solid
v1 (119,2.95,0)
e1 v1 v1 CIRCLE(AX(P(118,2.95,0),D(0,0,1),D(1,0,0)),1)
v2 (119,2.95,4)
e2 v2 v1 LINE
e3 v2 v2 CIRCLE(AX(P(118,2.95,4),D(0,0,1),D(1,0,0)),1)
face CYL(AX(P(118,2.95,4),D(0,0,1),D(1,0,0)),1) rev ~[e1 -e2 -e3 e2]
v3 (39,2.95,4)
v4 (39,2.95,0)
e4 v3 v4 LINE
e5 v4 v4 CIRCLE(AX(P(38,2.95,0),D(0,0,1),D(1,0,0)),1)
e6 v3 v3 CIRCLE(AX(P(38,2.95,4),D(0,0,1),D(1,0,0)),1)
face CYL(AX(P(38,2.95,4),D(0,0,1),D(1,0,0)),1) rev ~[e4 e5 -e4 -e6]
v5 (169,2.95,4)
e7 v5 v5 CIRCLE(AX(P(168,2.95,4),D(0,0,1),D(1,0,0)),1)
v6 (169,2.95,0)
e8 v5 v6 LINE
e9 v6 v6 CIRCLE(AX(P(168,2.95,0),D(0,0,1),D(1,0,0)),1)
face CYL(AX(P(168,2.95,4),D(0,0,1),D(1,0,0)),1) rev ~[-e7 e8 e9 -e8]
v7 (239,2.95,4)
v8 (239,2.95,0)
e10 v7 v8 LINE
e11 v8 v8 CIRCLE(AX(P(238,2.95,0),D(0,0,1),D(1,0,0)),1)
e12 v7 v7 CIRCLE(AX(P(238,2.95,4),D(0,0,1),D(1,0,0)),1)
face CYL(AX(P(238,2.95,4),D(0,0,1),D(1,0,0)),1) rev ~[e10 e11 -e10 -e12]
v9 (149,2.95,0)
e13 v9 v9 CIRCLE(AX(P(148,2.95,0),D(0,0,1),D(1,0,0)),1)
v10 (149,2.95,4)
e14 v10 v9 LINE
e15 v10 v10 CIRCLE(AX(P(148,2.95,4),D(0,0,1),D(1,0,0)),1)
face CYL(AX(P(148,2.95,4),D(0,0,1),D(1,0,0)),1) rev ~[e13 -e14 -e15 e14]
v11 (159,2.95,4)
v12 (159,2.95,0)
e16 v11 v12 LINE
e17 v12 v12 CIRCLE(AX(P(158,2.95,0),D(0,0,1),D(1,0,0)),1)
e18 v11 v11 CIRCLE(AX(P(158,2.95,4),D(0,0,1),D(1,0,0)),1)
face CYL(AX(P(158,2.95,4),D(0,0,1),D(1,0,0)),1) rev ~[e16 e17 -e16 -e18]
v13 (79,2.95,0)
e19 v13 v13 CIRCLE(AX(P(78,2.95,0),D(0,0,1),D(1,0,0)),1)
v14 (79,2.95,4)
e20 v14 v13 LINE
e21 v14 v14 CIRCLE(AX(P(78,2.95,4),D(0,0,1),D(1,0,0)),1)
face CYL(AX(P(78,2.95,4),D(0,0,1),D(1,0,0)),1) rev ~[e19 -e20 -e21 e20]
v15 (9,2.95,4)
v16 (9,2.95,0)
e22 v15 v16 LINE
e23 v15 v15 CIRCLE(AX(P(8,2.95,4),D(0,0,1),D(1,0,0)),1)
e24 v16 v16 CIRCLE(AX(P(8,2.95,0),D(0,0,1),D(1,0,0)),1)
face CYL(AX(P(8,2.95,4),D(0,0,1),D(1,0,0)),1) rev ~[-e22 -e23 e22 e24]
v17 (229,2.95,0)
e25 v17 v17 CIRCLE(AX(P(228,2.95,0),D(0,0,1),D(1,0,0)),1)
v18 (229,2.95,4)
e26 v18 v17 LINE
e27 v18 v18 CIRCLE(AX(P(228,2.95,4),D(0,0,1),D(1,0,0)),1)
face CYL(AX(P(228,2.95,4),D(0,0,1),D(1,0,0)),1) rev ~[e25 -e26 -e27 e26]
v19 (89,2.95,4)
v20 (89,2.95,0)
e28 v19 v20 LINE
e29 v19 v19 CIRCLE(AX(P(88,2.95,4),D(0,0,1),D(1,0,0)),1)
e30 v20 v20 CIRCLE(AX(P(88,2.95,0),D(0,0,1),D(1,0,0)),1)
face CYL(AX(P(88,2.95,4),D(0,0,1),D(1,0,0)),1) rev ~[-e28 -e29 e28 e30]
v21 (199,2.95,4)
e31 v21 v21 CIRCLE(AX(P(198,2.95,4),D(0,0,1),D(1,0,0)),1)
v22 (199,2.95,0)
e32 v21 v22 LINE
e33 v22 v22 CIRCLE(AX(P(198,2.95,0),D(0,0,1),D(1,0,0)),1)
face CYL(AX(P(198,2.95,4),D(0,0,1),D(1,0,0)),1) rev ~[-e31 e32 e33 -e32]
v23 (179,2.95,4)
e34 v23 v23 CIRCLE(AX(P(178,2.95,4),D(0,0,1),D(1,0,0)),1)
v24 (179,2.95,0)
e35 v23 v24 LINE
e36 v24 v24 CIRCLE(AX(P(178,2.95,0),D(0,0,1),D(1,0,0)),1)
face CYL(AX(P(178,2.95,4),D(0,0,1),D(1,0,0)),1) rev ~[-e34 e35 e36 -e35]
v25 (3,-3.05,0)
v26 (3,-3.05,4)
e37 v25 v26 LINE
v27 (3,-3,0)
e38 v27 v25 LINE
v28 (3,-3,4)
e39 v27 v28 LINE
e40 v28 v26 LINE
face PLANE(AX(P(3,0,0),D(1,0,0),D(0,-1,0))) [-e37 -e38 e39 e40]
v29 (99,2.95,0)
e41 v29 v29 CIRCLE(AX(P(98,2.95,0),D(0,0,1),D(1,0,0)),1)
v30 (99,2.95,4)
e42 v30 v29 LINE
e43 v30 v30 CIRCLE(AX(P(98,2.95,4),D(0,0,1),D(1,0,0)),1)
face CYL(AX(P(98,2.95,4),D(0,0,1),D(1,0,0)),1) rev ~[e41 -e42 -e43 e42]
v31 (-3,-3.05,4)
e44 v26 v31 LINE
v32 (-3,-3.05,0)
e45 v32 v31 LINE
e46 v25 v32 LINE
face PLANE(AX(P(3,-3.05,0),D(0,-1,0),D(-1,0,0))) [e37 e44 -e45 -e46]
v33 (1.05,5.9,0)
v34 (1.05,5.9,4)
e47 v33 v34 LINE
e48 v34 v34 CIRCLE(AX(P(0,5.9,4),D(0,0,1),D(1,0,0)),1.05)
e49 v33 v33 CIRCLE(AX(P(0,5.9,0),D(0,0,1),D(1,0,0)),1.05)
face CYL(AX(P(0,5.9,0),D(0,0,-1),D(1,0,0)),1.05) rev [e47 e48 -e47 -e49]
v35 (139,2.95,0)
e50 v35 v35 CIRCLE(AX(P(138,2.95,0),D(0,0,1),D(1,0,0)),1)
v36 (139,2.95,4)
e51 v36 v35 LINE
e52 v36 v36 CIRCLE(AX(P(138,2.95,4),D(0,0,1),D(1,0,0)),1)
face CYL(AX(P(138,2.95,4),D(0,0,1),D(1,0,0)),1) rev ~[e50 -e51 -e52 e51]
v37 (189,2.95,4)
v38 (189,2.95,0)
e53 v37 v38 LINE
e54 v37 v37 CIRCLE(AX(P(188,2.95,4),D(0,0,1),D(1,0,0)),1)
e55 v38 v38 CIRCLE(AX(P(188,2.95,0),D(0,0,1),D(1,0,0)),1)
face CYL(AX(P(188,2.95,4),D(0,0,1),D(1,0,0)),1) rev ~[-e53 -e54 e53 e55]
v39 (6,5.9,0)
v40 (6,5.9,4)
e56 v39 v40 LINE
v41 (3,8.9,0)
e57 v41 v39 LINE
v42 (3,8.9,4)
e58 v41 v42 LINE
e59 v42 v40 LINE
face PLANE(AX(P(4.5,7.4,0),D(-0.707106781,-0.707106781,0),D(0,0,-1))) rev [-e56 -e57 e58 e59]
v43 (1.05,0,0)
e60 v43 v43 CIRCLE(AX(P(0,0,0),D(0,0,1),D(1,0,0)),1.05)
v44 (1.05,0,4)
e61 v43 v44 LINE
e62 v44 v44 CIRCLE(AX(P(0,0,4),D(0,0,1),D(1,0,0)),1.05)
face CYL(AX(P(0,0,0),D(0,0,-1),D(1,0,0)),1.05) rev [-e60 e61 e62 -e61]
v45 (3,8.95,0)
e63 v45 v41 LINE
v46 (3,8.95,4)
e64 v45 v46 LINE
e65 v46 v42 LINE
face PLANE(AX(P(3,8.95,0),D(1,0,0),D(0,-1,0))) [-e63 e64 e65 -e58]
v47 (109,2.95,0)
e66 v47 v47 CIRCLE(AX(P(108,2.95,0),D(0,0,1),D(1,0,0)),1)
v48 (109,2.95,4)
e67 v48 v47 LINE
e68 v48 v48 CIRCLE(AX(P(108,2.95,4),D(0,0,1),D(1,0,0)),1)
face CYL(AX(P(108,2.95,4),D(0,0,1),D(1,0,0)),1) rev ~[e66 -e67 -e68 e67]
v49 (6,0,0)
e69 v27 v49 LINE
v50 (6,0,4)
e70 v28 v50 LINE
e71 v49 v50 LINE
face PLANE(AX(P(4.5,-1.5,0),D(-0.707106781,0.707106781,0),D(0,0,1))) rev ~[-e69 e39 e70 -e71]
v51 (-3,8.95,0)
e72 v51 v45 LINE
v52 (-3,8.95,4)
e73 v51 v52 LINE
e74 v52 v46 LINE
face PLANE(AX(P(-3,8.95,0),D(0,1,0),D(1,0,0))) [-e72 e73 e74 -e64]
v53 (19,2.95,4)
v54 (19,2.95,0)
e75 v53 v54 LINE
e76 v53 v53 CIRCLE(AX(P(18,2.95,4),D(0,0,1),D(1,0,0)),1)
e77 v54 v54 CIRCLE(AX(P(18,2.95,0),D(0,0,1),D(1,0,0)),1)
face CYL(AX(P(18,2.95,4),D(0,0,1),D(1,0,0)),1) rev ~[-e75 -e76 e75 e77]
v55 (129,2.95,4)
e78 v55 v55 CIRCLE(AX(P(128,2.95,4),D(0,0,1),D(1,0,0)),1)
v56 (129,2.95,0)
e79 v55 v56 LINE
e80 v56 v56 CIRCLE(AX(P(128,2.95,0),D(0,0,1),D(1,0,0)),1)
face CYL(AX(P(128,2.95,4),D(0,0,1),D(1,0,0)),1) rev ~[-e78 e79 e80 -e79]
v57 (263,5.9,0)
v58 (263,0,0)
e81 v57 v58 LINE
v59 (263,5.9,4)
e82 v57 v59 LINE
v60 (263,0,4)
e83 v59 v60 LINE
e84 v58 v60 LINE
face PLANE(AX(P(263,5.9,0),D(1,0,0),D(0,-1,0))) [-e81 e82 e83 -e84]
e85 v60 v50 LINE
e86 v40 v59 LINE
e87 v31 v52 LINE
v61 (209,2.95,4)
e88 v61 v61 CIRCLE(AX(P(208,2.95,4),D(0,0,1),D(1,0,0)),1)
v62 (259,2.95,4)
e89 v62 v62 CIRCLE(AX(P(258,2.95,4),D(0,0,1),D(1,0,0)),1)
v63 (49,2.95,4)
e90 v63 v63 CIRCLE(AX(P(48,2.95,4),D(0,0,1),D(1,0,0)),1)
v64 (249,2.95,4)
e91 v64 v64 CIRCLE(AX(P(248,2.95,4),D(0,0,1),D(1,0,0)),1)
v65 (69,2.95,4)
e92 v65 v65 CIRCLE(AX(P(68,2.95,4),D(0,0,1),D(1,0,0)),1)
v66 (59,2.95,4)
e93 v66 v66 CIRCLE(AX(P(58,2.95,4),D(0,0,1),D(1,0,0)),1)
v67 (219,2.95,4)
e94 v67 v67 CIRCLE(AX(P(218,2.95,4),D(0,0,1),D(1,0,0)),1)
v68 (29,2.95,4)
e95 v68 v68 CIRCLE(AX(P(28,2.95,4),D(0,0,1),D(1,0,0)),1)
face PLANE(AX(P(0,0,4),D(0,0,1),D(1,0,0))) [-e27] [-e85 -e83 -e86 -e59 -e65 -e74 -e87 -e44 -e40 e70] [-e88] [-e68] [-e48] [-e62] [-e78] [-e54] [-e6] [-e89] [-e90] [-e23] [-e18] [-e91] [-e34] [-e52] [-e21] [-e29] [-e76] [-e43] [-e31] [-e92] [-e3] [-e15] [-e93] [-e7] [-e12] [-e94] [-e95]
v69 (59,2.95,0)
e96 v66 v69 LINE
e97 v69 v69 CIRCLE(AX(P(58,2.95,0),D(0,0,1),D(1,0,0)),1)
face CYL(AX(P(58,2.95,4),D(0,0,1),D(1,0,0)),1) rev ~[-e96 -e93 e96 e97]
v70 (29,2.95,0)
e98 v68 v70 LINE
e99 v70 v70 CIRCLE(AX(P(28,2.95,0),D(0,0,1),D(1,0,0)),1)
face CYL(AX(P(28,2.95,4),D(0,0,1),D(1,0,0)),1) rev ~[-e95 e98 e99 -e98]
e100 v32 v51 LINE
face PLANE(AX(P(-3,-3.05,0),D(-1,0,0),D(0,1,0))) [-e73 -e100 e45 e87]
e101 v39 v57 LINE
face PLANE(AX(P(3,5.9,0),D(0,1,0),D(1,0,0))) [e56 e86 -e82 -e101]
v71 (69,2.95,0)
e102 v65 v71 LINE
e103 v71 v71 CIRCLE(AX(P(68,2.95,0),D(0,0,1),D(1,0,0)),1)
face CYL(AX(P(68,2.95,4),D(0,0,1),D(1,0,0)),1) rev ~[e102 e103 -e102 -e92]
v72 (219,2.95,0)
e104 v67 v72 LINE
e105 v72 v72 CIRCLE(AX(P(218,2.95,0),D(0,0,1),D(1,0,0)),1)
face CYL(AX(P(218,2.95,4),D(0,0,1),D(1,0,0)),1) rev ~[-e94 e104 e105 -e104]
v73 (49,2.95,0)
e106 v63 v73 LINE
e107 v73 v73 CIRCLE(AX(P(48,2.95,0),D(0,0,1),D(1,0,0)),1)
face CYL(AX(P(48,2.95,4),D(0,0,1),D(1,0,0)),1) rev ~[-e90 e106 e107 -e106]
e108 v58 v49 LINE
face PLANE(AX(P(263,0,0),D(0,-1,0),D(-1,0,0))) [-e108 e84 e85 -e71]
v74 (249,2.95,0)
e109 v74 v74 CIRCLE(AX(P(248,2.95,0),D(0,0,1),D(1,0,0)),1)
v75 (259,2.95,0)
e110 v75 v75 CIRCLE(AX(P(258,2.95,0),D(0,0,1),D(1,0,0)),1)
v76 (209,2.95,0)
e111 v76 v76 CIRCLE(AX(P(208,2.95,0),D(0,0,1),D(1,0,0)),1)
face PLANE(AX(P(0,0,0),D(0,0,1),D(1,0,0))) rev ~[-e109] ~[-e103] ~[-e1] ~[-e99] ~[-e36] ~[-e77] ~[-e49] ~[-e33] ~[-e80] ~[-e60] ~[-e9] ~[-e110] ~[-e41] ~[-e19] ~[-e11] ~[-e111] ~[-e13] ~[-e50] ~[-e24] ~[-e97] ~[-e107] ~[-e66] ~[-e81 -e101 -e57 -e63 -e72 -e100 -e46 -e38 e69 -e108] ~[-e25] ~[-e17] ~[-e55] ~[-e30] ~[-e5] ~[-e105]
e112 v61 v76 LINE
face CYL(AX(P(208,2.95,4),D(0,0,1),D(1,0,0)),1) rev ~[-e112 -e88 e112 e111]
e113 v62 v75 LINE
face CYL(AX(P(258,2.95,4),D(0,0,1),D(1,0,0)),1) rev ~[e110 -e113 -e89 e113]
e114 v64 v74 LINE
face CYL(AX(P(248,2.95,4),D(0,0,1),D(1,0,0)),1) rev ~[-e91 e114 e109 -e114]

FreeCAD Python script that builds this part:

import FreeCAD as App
import Part
import Sketcher

V = App.Vector
Q = App.Units.Quantity


def edges_at(feature, points):
    """Names of the edges that pass closest to the given points."""
    edges = feature.Shape.Edges
    near = lambda p: min(range(len(edges)), key=lambda i: edges[i].distToShape(Part.Vertex(*p))[0])
    return sorted({f"Edge{near(p) + 1}" for p in points})


def add_polygon(sketch, points):
    """Adds a closed chain of lines whose ends are joined by coincident constraints."""
    first, n = sketch.GeometryCount, len(points)
    for a, b in zip(points, points[1:] + points[:1]):
        sketch.addGeometry(Part.LineSegment(App.Vector(*a, 0), App.Vector(*b, 0)), False)
    for i in range(n):
        sketch.addConstraint(Sketcher.Constraint("Coincident", first + i, 2, first + (i + 1) % n, 1))

doc = App.newDocument("Part")
params = doc.addObject("Spreadsheet::Sheet", "Params")
for row, (alias, value) in enumerate([
    ("sketch1_diameter", "2.1 mm"),
    ("sketch1_width", "260 mm"),
    ("sketch1_height", "12 mm"),
    ("sketch1_height2", "5.9 mm"),
    ("pad1_length", "4 mm"),
    ("sketch2_diameter", "2 mm"),
    ("pocket1_length", "10 mm"),
    ("linearpattern_pitch", "10 mm"),
    ("chamfer_size", "3 mm"),
], start=1):
    params.set(f"A{row}", alias)
    params.set(f"B{row}", "=" + value)
    params.setAlias(f"B{row}", alias)

body = doc.addObject("PartDesign::Body", "Body")

# Sketch on XY plane
sketch1 = body.newObject("Sketcher::SketchObject", "Sketch")
sketch1.AttachmentSupport = (doc.getObject("XY_Plane"), [""])
sketch1.MapMode = "FlatFace"
add_polygon(sketch1, [(3, 8.95), (-3, 8.95), (-3, -3.05), (3, -3.05), (3, 0), (263, 0), (263, 5.9), (3, 5.9)])  # lines 0-7
sketch1.addGeometry(Part.Circle(V(0, 0, 0), V(0, 0, 1), 1.05), False)  # 8
sketch1.addGeometry(Part.Circle(V(0, 5.9, 0), V(0, 0, 1), 1.05), False)  # 9
sketch1.addConstraint([
    Sketcher.Constraint("Horizontal", 0),
    Sketcher.Constraint("Vertical", 1),
    Sketcher.Constraint("Horizontal", 2),
    Sketcher.Constraint("Vertical", 3),
    Sketcher.Constraint("Horizontal", 4),
    Sketcher.Constraint("Vertical", 5),
    Sketcher.Constraint("Horizontal", 6),
    Sketcher.Constraint("Vertical", 7),
    Sketcher.Constraint("Coincident", 8, 3, -1, 1),
    Sketcher.Constraint("Equal", 8, 9),
    Sketcher.Constraint("PointOnObject", 9, 3, -2),
    Sketcher.Constraint("PointOnObject", 3, 2, -1),
    Sketcher.Constraint("Horizontal", 9, 3, 5, 2),
    Sketcher.Constraint("Vertical", 3, 2, 6, 2),
    Sketcher.Constraint("Equal", 3, 7),
    Sketcher.Constraint("Diameter", 8, Q("2.1 mm")),
    Sketcher.Constraint("DistanceX", 4, 1, 4, 2, Q("260 mm")),
    Sketcher.Constraint("DistanceY", 1, 2, 1, 1, Q("12 mm")),
    Sketcher.Constraint("DistanceY", 5, 1, 5, 2, Q("5.9 mm")),
    Sketcher.Constraint("DistanceX", 0, 2, -1, 1, Q("3 mm")),
    Sketcher.Constraint("DistanceX", -1, 1, 2, 2, Q("3 mm")),
])
sketch1.setExpression("Constraints[23]", "Params.sketch1_diameter")
sketch1.setExpression("Constraints[24]", "Params.sketch1_width")
sketch1.setExpression("Constraints[25]", "Params.sketch1_height")
sketch1.setExpression("Constraints[26]", "Params.sketch1_height2")
pad1 = body.newObject("PartDesign::Pad", "Pad")
pad1.Profile = sketch1
pad1.setExpression("Length", "Params.pad1_length")

# Sketch on XY plane
sketch2 = body.newObject("Sketcher::SketchObject", "Sketch001")
sketch2.AttachmentSupport = (doc.getObject("XY_Plane"), [""])
sketch2.MapMode = "FlatFace"
sketch2.AttachmentOffset = App.Placement(V(0, 0, 4), App.Rotation())
sketch2.addGeometry(Part.Circle(V(8, 2.95, 0), V(0, 0, 1), 1), False)
sketch2.addConstraint([
    Sketcher.Constraint("Diameter", 0, Q("2 mm")),
    Sketcher.Constraint("DistanceX", -1, 1, 0, 3, Q("8 mm")),
    Sketcher.Constraint("DistanceY", -1, 1, 0, 3, Q("2.95 mm")),
])
sketch2.setExpression("Constraints[0]", "Params.sketch2_diameter")
pocket1 = body.newObject("PartDesign::Pocket", "Pocket")
pocket1.Profile = sketch2
pocket1.setExpression("Length", "Params.pocket1_length")
doc.recompute()

linearpattern = body.newObject("PartDesign::LinearPattern", "LinearPattern")
linearpattern.Originals = [pocket1]
linearpattern.Direction = (doc.getObject("X_Axis"), [""])
linearpattern.Mode = "offset"
linearpattern.setExpression("Offset", "Params.linearpattern_pitch")
linearpattern.Occurrences = 26
body.Tip = linearpattern
doc.recompute()

chamfer = body.newObject("PartDesign::Chamfer", "Chamfer")
chamfer.Base = (linearpattern, edges_at(linearpattern, [(3, 5.9, 2), (3, 0, 2)]))
chamfer.setExpression("Size", "Params.chamfer_size")

doc.recompute()
